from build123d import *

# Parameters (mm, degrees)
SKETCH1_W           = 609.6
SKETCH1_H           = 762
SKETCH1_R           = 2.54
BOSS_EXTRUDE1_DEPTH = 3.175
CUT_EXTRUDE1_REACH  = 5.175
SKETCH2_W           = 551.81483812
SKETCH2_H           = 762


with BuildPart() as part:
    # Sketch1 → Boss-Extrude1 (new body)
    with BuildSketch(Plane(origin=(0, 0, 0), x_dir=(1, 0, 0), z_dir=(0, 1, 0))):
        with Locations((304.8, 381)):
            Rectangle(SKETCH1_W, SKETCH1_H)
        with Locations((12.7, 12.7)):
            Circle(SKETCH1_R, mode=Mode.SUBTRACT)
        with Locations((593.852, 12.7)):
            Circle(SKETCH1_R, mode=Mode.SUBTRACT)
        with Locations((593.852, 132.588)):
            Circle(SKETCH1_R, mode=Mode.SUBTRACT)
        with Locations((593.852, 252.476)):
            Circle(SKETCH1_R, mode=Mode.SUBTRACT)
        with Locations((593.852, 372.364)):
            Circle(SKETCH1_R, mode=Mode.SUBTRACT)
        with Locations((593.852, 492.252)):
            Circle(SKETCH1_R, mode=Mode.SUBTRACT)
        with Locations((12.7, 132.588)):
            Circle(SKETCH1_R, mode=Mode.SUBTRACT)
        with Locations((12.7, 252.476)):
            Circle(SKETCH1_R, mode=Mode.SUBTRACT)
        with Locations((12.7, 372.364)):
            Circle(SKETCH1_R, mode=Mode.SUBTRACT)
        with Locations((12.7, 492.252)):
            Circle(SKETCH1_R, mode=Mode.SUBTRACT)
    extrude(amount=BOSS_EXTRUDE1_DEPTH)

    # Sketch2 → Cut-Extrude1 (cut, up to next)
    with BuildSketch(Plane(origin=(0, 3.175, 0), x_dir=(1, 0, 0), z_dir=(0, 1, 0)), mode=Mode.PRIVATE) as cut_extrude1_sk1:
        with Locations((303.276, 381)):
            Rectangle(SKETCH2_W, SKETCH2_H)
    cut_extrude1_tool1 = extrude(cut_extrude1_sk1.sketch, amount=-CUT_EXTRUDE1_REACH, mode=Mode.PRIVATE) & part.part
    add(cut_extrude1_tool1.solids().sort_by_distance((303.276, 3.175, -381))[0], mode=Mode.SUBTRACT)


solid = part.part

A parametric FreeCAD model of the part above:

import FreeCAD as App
import Part
import Sketcher
Q = App.Units.Quantity


def add_polygon(sketch, points):
    """Adds a closed chain of lines whose ends are joined by coincident constraints."""
    first, n = sketch.GeometryCount, len(points)
    for a, b in zip(points, points[1:] + points[:1]):
        sketch.addGeometry(Part.LineSegment(App.Vector(*a, 0), App.Vector(*b, 0)), False)
    for i in range(n):
        sketch.addConstraint(Sketcher.Constraint("Coincident", first + i, 2, first + (i + 1) % n, 1))

doc = App.newDocument("Part")
body = doc.addObject("PartDesign::Body", "Body")
body.AllowCompound = True

sketch1 = body.newObject("Sketcher::SketchObject", "Sketch")
sketch1.AttachmentSupport = (doc.getObject("XZ_Plane"), [""])
sketch1.MapMode = "FlatFace"
add_polygon(sketch1, [(0, -762), (0, 0), (609.6, 0), (609.6, -762)])
sketch1.addGeometry(Part.Circle(App.Vector(12.7, -12.7, 0), App.Vector(0, 0, 1), 2.5), False)
sketch1.addGeometry(Part.Circle(App.Vector(12.7, -132.6, 0), App.Vector(0, 0, 1), 2.5), False)
sketch1.addGeometry(Part.Circle(App.Vector(593.9, -12.7, 0), App.Vector(0, 0, 1), 2.5), False)
sketch1.addGeometry(Part.Circle(App.Vector(593.9, -132.6, 0), App.Vector(0, 0, 1), 2.5), False)
sketch1.addGeometry(Part.Circle(App.Vector(12.7, -252.5, 0), App.Vector(0, 0, 1), 2.5), False)
sketch1.addGeometry(Part.Circle(App.Vector(12.7, -372.4, 0), App.Vector(0, 0, 1), 2.5), False)
sketch1.addGeometry(Part.Circle(App.Vector(12.7, -492.3, 0), App.Vector(0, 0, 1), 2.5), False)
sketch1.addGeometry(Part.Circle(App.Vector(593.9, -252.5, 0), App.Vector(0, 0, 1), 2.5), False)
sketch1.addGeometry(Part.Circle(App.Vector(593.9, -372.4, 0), App.Vector(0, 0, 1), 2.5), False)
sketch1.addGeometry(Part.Circle(App.Vector(593.9, -492.3, 0), App.Vector(0, 0, 1), 2.5), False)
sketch1.addConstraint([
    Sketcher.Constraint("Vertical", 0),
    Sketcher.Constraint("Horizontal", 1),
    Sketcher.Constraint("Vertical", 2),
    Sketcher.Constraint("Horizontal", 3),
    Sketcher.Constraint("Coincident", 0, 2, -1, 1),
    Sketcher.Constraint("Equal", 4, 5),
    Sketcher.Constraint("Equal", 5, 6),
    Sketcher.Constraint("Equal", 6, 7),
    Sketcher.Constraint("Equal", 7, 8),
    Sketcher.Constraint("Equal", 8, 9),
    Sketcher.Constraint("Equal", 9, 10),
    Sketcher.Constraint("Equal", 10, 11),
    Sketcher.Constraint("Equal", 11, 12),
    Sketcher.Constraint("Equal", 12, 13),
    Sketcher.Constraint("Horizontal", 4, 3, 6, 3),
    Sketcher.Constraint("Horizontal", 5, 3, 7, 3),
    Sketcher.Constraint("Horizontal", 8, 3, 11, 3),
    Sketcher.Constraint("Horizontal", 9, 3, 12, 3),
    Sketcher.Constraint("Horizontal", 10, 3, 13, 3),
    Sketcher.Constraint("Vertical", 4, 3, 5, 3),
    Sketcher.Constraint("Vertical", 6, 3, 7, 3),
    Sketcher.Constraint("Vertical", 5, 3, 8, 3),
    Sketcher.Constraint("Vertical", 8, 3, 9, 3),
    Sketcher.Constraint("Vertical", 9, 3, 10, 3),
    Sketcher.Constraint("Vertical", 7, 3, 11, 3),
    Sketcher.Constraint("Vertical", 11, 3, 12, 3),
    Sketcher.Constraint("Vertical", 12, 3, 13, 3),
    Sketcher.Constraint("Diameter", 4, Q("0.2 in")),
    Sketcher.Constraint("DistanceX", 1, 1, 1, 2, Q("24 in")),
    Sketcher.Constraint("DistanceY", 0, 1, 0, 2, Q("30 in")),
    Sketcher.Constraint("DistanceX", -1, 1, 4, 3, Q("0.5 in")),
    Sketcher.Constraint("DistanceY", 4, 3, -1, 1, Q("0.5 in")),
    Sketcher.Constraint("DistanceY", 5, 3, -1, 1, Q("5.22 in")),
    Sketcher.Constraint("DistanceX", -1, 1, 6, 3, Q("23.38 in")),
    Sketcher.Constraint("DistanceY", 8, 3, -1, 1, Q("9.94 in")),
    Sketcher.Constraint("DistanceY", 9, 3, -1, 1, Q("14.66 in")),
    Sketcher.Constraint("DistanceY", 10, 3, -1, 1, Q("19.38 in")),
])
pad1 = body.newObject("PartDesign::Pad", "Pad")
pad1.Profile = sketch1
pad1.Length = Q("0.125 in")
pad1.Reversed = True

sketch2 = body.newObject("Sketcher::SketchObject", "Sketch001")
sketch2.AttachmentSupport = (doc.getObject("XZ_Plane"), [""])
sketch2.MapMode = "FlatFace"
sketch2.AttachmentOffset = App.Placement(App.Vector(0, 0, -0.125 * 25.4), App.Rotation())
add_polygon(sketch2, [(27, -762), (27, 0), (579, 0), (579, -762)])
sketch2.addConstraint([
    Sketcher.Constraint("Vertical", 0),
    Sketcher.Constraint("Horizontal", 1),
    Sketcher.Constraint("Vertical", 2),
    Sketcher.Constraint("Horizontal", 3),
    Sketcher.Constraint("PointOnObject", 0, 2, -1),
    Sketcher.Constraint("DistanceY", 0, 1, 0, 2, Q("30 in")),
    Sketcher.Constraint("DistanceX", 1, 1, 1, 2, 551.814838),
    Sketcher.Constraint("DistanceX", -1, 1, 0, 2, 27.368581),
])
pocket1 = body.newObject("PartDesign::Pocket", "Pocket")
pocket1.Profile = sketch2
pocket1.Type = "UpToFirst"
pocket1.Reversed = True

doc.recompute()
